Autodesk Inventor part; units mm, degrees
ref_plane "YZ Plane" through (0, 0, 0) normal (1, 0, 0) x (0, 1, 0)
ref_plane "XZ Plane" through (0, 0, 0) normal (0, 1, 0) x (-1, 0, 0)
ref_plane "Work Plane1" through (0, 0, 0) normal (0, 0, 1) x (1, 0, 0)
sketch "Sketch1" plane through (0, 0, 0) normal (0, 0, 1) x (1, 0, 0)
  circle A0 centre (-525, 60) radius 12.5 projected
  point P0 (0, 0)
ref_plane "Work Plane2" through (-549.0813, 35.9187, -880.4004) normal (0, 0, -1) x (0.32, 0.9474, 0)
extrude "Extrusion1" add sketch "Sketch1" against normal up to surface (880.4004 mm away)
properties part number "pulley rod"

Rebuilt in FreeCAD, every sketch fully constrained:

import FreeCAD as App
import Part
import Sketcher
Q = App.Units.Quantity

doc = App.newDocument("Part")
body = doc.addObject("PartDesign::Body", "Body")

sketch1 = body.newObject("Sketcher::SketchObject", "Sketch")
sketch1.AttachmentSupport = (doc.getObject("XY_Plane"), [""])
sketch1.MapMode = "FlatFace"
sketch1.addGeometry(Part.Circle(App.Vector(-525, 60, 0), App.Vector(0, 0, 1), 12), False)
sketch1.addConstraint([
    Sketcher.Constraint("Diameter", 0, Q("25 mm")),
    Sketcher.Constraint("DistanceX", 0, 3, -1, 1, Q("525 mm")),
    Sketcher.Constraint("DistanceY", -1, 1, 0, 3, Q("60 mm")),
])
pad1 = body.newObject("PartDesign::Pad", "Pad")
pad1.Profile = sketch1
pad1.Length = 880.4004
pad1.Reversed = True

doc.recompute()
